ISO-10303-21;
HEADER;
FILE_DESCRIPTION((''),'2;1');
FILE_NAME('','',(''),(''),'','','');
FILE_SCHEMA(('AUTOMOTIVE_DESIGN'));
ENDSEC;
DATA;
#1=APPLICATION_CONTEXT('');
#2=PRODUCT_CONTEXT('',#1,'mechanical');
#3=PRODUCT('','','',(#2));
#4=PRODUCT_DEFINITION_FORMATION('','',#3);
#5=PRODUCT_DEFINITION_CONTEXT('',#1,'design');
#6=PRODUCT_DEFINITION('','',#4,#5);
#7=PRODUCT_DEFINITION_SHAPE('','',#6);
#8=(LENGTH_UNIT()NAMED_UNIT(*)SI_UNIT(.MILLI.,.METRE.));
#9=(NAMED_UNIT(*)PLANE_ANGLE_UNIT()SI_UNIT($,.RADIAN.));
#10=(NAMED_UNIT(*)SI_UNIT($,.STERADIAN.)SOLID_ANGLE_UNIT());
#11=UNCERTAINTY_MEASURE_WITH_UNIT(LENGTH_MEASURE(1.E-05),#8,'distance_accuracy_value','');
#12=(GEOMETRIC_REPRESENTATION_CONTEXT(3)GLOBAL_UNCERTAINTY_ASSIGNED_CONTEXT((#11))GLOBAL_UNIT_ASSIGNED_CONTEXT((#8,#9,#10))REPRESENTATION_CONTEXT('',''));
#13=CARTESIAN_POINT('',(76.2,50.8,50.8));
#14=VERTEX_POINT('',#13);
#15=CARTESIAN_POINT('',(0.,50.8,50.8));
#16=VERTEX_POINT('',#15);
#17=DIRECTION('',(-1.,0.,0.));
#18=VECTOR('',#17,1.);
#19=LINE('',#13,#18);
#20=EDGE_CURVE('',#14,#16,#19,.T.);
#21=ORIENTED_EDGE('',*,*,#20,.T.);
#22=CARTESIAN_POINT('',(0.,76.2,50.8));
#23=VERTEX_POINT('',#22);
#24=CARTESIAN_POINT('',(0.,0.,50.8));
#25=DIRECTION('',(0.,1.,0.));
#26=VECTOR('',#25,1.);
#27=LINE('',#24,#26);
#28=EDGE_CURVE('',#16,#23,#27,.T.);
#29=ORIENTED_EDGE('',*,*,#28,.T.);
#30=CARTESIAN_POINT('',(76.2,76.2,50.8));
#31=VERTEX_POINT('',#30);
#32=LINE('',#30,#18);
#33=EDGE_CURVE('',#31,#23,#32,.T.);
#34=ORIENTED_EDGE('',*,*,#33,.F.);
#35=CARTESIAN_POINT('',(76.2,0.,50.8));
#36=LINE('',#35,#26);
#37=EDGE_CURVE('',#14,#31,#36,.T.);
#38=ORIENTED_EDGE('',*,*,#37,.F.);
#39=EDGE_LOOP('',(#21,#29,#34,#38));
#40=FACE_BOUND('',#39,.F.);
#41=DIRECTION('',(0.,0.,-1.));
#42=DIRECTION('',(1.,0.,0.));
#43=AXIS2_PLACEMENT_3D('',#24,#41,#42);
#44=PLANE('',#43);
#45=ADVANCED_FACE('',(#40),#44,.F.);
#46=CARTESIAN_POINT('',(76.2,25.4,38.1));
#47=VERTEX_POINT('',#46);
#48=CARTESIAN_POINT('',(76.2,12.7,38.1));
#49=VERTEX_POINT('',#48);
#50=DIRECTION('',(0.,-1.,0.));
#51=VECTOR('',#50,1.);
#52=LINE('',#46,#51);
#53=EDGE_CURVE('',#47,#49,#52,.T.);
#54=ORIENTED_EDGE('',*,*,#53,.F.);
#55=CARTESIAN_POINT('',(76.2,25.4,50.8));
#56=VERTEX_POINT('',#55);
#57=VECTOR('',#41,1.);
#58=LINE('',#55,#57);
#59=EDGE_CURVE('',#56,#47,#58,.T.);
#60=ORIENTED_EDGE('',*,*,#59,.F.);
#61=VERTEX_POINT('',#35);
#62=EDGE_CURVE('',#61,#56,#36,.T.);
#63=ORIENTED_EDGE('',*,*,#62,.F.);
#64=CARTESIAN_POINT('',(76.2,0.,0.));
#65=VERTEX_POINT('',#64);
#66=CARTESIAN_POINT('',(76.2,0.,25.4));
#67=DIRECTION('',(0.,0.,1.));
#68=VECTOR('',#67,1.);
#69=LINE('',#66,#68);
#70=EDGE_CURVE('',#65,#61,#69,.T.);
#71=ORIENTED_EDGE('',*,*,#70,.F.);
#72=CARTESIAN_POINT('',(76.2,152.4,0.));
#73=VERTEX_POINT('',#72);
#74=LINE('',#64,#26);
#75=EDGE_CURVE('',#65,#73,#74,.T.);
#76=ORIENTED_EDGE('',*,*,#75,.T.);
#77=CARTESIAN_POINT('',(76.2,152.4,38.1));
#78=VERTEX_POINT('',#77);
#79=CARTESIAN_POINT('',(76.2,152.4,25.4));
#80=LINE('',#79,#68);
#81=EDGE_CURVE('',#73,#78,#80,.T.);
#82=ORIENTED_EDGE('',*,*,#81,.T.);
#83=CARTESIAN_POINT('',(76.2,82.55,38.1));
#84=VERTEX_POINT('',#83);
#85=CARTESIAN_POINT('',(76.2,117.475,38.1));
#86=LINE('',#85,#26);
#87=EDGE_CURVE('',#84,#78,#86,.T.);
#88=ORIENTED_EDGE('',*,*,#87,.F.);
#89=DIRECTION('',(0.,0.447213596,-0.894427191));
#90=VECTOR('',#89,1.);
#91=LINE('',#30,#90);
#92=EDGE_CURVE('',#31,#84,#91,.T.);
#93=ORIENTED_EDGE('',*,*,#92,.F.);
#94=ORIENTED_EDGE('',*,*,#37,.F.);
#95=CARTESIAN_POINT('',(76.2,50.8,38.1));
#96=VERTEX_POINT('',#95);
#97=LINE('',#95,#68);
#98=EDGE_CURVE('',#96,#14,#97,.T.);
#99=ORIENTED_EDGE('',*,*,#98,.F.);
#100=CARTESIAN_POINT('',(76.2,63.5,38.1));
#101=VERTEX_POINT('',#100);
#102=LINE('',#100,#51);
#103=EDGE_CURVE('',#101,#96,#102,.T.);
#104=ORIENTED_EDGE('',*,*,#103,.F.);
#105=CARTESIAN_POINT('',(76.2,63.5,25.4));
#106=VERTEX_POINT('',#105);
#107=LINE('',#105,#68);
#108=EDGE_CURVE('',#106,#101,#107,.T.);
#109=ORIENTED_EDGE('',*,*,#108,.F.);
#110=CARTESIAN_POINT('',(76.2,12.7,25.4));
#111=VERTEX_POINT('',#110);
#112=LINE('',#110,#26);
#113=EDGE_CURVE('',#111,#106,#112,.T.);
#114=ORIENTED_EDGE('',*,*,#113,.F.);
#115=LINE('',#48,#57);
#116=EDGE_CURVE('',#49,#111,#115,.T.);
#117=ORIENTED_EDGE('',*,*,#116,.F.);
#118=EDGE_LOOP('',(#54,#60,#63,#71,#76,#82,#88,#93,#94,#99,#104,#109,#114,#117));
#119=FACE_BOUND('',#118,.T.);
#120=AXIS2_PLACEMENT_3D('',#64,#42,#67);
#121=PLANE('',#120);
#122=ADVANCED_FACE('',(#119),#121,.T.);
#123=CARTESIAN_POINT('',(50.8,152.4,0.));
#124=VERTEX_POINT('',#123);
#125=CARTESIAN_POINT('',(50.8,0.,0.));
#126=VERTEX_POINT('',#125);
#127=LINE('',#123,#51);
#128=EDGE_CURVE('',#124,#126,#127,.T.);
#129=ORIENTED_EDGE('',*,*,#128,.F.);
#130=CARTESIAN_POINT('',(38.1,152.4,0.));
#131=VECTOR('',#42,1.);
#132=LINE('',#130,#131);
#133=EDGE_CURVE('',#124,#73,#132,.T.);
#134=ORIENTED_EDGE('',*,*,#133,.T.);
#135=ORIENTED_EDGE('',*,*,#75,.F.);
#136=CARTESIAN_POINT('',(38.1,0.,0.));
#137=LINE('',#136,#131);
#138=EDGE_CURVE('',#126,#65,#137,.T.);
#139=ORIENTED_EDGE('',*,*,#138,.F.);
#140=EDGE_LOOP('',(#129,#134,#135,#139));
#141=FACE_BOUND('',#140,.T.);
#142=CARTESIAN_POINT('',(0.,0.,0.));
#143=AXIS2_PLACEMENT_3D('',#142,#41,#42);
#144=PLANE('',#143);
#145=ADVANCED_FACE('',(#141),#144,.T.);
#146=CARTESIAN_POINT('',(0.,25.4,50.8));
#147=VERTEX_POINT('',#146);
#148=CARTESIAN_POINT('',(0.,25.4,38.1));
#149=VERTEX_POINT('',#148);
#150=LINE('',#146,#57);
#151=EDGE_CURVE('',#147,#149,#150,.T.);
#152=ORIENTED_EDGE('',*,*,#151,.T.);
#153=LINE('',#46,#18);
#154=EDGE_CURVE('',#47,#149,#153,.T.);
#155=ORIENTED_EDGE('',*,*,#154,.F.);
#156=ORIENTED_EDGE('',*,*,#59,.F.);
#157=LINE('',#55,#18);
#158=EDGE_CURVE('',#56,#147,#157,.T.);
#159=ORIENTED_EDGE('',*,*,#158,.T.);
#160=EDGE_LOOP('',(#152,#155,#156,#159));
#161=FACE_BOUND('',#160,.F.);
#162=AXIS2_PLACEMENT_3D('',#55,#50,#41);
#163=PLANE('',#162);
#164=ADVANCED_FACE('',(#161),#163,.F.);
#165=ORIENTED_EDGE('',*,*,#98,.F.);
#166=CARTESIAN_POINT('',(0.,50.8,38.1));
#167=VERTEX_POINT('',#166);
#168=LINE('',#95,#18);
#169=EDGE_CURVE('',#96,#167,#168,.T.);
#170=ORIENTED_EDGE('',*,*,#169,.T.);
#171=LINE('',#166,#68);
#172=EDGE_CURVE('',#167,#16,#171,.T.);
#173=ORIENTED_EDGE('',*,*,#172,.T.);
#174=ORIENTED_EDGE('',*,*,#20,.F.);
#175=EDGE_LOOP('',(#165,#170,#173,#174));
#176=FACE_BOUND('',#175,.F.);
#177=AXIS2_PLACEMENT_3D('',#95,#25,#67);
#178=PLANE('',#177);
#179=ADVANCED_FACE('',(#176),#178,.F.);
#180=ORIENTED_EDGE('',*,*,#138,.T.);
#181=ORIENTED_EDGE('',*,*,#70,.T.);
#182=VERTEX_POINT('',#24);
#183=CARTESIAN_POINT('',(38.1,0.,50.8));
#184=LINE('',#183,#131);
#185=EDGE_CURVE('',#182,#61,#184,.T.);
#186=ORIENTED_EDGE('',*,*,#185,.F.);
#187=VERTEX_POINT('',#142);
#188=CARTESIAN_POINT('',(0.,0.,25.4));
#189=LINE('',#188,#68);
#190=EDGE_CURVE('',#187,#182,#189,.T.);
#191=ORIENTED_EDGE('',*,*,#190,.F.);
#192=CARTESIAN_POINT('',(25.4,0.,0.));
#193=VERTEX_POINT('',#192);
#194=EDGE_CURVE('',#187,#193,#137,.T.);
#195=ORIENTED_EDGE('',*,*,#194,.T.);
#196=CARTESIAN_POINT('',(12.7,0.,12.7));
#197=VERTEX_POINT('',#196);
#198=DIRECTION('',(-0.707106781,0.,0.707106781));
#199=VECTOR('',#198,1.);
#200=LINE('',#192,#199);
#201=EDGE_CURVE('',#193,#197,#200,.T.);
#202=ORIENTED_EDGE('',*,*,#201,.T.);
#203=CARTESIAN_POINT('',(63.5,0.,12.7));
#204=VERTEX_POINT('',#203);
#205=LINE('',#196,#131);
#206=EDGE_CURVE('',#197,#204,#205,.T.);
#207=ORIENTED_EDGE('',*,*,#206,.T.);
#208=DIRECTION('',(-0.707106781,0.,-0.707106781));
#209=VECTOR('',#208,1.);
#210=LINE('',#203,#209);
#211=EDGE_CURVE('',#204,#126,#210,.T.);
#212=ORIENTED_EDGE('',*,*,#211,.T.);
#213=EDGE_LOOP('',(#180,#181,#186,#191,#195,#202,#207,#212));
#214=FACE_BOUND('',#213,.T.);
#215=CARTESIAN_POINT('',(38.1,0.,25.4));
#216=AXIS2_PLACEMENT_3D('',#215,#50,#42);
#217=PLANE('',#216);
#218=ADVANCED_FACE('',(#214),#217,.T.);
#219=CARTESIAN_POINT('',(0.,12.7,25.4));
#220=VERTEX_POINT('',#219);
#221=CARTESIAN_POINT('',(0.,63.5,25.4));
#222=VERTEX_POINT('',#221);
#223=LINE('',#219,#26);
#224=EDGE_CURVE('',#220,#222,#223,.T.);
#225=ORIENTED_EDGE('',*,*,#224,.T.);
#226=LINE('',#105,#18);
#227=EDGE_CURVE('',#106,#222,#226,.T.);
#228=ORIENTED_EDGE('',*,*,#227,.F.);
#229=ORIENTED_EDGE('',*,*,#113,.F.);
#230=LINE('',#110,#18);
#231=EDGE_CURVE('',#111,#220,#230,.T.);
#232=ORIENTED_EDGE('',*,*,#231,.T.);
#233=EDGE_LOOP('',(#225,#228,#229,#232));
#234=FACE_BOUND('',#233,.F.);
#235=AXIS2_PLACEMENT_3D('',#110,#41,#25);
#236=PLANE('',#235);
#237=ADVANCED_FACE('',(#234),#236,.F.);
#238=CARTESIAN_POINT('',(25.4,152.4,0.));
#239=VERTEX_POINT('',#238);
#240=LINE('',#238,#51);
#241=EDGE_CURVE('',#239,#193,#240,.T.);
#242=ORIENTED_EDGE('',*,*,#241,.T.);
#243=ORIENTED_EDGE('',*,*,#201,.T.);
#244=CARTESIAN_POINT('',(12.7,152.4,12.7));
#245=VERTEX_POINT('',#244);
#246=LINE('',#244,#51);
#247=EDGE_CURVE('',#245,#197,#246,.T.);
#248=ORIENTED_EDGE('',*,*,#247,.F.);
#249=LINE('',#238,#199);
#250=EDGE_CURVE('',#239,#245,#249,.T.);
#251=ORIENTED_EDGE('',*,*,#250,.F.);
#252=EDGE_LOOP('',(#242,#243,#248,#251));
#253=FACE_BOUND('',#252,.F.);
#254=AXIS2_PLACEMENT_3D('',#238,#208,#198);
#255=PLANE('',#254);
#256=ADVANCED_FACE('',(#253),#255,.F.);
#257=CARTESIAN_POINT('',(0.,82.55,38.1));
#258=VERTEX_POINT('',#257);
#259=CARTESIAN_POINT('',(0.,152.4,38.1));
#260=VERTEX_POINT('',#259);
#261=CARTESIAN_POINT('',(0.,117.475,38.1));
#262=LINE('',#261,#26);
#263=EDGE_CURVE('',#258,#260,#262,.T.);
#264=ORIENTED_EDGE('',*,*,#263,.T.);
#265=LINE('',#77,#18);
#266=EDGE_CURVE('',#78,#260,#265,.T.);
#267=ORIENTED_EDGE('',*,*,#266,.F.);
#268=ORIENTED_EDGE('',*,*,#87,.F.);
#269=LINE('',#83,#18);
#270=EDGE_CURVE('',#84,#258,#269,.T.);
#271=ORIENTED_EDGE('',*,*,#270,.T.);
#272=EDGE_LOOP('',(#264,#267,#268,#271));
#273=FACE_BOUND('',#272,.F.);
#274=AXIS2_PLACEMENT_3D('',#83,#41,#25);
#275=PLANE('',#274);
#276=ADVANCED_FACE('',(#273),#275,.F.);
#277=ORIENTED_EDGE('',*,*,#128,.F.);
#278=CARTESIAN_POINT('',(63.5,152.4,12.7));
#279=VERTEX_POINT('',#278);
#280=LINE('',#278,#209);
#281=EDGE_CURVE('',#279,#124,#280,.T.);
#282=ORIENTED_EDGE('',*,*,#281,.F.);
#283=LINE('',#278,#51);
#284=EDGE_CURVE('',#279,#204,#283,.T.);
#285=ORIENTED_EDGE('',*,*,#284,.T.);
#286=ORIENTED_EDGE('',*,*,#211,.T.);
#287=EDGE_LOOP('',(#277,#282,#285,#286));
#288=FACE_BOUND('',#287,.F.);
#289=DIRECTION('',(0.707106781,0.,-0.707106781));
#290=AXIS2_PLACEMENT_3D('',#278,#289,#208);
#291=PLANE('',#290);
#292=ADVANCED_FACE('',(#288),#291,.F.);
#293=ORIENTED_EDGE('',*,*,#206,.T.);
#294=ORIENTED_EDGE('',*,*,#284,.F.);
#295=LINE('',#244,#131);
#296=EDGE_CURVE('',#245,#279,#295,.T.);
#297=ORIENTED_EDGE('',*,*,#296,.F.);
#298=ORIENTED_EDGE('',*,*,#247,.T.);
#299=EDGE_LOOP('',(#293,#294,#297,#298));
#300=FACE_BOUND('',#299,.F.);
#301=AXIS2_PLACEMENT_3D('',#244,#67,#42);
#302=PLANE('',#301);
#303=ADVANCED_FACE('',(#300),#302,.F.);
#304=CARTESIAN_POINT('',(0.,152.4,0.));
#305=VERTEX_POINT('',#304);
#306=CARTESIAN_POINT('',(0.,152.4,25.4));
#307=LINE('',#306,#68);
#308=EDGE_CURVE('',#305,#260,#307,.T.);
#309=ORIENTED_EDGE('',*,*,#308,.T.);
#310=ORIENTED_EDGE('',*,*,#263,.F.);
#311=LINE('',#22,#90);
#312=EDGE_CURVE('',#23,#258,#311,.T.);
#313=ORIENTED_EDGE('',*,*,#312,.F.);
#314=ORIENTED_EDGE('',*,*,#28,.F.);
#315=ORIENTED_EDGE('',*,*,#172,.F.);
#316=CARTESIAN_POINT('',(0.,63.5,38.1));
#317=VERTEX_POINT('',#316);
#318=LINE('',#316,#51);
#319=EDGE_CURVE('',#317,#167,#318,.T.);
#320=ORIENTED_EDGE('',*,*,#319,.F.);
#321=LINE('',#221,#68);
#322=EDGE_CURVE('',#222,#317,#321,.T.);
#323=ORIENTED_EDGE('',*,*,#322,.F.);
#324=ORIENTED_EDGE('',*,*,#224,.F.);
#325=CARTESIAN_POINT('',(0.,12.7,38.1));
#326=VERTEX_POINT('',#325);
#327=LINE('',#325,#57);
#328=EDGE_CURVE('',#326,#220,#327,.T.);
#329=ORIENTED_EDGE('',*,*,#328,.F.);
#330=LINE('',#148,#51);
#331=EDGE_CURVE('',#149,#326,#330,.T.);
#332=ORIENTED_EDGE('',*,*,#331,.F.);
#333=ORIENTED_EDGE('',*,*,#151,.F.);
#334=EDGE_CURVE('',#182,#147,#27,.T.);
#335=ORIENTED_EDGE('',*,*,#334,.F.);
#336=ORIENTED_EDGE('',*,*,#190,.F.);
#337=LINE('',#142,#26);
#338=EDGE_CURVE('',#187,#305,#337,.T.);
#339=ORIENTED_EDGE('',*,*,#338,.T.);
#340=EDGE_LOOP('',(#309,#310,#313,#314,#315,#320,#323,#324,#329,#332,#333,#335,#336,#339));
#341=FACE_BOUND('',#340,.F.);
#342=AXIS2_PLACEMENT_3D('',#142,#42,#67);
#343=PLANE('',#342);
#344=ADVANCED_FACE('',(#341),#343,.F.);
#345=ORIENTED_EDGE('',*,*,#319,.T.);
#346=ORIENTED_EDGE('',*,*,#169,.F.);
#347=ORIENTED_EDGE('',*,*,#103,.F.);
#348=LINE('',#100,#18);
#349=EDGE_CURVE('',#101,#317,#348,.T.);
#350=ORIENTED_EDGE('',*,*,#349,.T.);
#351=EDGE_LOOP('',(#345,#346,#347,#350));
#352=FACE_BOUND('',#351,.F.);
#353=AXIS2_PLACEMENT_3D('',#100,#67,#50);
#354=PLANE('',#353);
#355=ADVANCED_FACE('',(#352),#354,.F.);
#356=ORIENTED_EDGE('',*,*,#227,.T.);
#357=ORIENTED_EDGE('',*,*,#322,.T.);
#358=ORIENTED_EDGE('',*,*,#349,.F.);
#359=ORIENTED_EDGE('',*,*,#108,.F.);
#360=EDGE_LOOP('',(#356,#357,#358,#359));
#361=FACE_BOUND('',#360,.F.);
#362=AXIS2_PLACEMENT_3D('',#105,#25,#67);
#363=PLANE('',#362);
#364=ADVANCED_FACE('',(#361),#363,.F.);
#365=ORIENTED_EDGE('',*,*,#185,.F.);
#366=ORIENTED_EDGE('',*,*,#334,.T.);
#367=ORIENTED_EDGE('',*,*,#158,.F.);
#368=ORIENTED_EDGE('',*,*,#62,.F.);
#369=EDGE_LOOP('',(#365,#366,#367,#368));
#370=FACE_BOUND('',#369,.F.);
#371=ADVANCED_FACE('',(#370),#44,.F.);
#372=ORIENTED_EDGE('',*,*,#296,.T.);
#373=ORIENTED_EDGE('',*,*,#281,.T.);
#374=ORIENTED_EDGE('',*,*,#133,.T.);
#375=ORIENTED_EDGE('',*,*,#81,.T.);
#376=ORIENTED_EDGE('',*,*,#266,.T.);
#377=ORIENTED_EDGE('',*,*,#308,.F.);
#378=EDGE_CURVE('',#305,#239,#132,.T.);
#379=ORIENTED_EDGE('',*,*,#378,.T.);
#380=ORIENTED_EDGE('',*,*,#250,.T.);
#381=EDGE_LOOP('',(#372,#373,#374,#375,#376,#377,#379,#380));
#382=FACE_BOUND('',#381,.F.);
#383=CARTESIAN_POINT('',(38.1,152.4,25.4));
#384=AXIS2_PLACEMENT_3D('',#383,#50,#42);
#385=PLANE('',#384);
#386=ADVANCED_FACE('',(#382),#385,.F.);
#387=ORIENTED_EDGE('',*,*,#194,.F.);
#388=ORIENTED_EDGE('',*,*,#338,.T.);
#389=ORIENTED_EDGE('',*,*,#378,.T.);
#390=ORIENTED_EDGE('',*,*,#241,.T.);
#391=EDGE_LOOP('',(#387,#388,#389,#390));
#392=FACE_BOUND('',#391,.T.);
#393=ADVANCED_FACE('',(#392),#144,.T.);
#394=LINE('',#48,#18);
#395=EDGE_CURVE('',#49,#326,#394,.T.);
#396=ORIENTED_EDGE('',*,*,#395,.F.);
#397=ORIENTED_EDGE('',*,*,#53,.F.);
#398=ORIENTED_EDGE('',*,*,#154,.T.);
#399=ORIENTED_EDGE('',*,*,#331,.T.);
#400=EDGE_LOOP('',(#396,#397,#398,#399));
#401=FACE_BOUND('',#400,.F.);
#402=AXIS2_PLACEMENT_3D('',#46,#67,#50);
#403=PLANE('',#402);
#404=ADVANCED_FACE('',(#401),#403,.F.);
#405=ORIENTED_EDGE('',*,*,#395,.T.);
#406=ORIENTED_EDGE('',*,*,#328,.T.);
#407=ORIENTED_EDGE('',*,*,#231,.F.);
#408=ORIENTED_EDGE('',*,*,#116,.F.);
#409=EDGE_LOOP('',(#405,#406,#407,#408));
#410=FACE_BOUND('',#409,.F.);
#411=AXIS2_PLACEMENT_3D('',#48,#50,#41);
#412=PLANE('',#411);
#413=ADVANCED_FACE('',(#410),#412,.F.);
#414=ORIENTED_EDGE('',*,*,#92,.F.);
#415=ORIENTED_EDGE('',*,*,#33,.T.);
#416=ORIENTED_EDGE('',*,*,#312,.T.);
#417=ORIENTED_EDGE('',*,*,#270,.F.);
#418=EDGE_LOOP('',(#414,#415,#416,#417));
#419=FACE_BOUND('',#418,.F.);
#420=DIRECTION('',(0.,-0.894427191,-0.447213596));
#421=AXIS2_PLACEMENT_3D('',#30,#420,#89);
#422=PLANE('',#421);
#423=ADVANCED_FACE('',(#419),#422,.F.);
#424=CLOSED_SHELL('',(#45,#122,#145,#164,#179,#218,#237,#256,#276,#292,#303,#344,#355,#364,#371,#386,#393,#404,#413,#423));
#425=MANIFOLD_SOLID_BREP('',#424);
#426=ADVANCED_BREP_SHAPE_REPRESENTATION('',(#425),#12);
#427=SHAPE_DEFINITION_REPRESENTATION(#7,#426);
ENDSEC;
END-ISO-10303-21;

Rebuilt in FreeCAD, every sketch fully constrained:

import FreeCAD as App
import Part
import Sketcher

V = App.Vector
Q = App.Units.Quantity


def add_polygon(sketch, points):
    """Adds a closed chain of lines whose ends are joined by coincident constraints."""
    first, n = sketch.GeometryCount, len(points)
    for a, b in zip(points, points[1:] + points[:1]):
        sketch.addGeometry(Part.LineSegment(App.Vector(*a, 0), App.Vector(*b, 0)), False)
    for i in range(n):
        sketch.addConstraint(Sketcher.Constraint("Coincident", first + i, 2, first + (i + 1) % n, 1))

doc = App.newDocument("Part")
params = doc.addObject("Spreadsheet::Sheet", "Params")
for row, (alias, value) in enumerate([
    ("sketch1_width", "3 in"),
    ("sketch1_height", "2 in"),
    ("pad1_length", "6 in"),
    ("sketch2_width", "1 in"),
    ("sketch2_width2", "2 in"),
    ("pocket1_length", "3 in"),
    ("sketch3_width", "3 in"),
    ("sketch3_height", "0.5 in"),
    ("sketch3_width2", "2.75 in"),
    ("pocket2_length", "3 in"),
    ("sketch4_width", "1 in"),
    ("sketch4_width2", "2 in"),
    ("pocket3_length", "6 in"),
], start=1):
    params.set(f"A{row}", alias)
    params.set(f"B{row}", "=" + value)
    params.setAlias(f"B{row}", alias)

body = doc.addObject("PartDesign::Body", "Body")

# Sketch on XZ plane
sketch1 = body.newObject("Sketcher::SketchObject", "Sketch")
sketch1.AttachmentSupport = (doc.getObject("XZ_Plane"), [""])
sketch1.MapMode = "FlatFace"
add_polygon(sketch1, [(0, 51), (0, 0), (76, 0), (76, 51)])  # lines 0-3
sketch1.addConstraint([
    Sketcher.Constraint("Vertical", 0),
    Sketcher.Constraint("Horizontal", 1),
    Sketcher.Constraint("Vertical", 2),
    Sketcher.Constraint("Horizontal", 3),
    Sketcher.Constraint("Coincident", 0, 2, -1, 1),
    Sketcher.Constraint("DistanceX", 1, 1, 1, 2, Q("3 in")),
    Sketcher.Constraint("DistanceY", 0, 2, 0, 1, Q("2 in")),
])
sketch1.setExpression("Constraints[9]", "Params.sketch1_width")
sketch1.setExpression("Constraints[10]", "Params.sketch1_height")
pad1 = body.newObject("PartDesign::Pad", "Pad")
pad1.Profile = sketch1
pad1.setExpression("Length", "Params.pad1_length")
pad1.Reversed = True

# Sketch on YZ plane
sketch2 = body.newObject("Sketcher::SketchObject", "Sketch001")
sketch2.AttachmentSupport = (doc.getObject("YZ_Plane"), [""])
sketch2.MapMode = "FlatFace"
sketch2.AttachmentOffset = App.Placement(V(0, 0, 3 * 25.4), App.Rotation())
add_polygon(sketch2, [(51, 51), (25, 51), (25, 38), (13, 38), (13, 25), (64, 25), (64, 38), (51, 38)])  # lines 0-7
sketch2.addConstraint([
    Sketcher.Constraint("Horizontal", 0),
    Sketcher.Constraint("Vertical", 1),
    Sketcher.Constraint("Horizontal", 2),
    Sketcher.Constraint("Vertical", 3),
    Sketcher.Constraint("Horizontal", 4),
    Sketcher.Constraint("Vertical", 5),
    Sketcher.Constraint("Horizontal", 6),
    Sketcher.Constraint("Vertical", 7),
    Sketcher.Constraint("Horizontal", 2, 2, 5, 2),
    Sketcher.Constraint("Equal", 2, 6),
    Sketcher.Constraint("Equal", 6, 1),
    Sketcher.Constraint("Equal", 1, 3),
    Sketcher.Constraint("DistanceX", 0, 2, 0, 1, Q("1 in")),
    Sketcher.Constraint("DistanceX", 4, 1, 4, 2, Q("2 in")),
    Sketcher.Constraint("DistanceX", -1, 1, 0, 2, Q("1 in")),
    Sketcher.Constraint("DistanceY", -1, 1, 0, 2, Q("2 in")),
])
sketch2.setExpression("Constraints[20]", "Params.sketch2_width")
sketch2.setExpression("Constraints[21]", "Params.sketch2_width2")
pocket1 = body.newObject("PartDesign::Pocket", "Pocket")
pocket1.Profile = sketch2
pocket1.setExpression("Length", "Params.pocket1_length")

# Sketch on YZ plane
sketch3 = body.newObject("Sketcher::SketchObject", "Sketch002")
sketch3.AttachmentSupport = (doc.getObject("YZ_Plane"), [""])
sketch3.MapMode = "FlatFace"
sketch3.AttachmentOffset = App.Placement(V(0, 0, 3 * 25.4), App.Rotation())
add_polygon(sketch3, [(76, 51), (83, 38), (152, 38), (152, 51)])  # lines 0-3
sketch3.addConstraint([
    Sketcher.Constraint("Horizontal", 1),
    Sketcher.Constraint("Vertical", 2),
    Sketcher.Constraint("Horizontal", 3),
    Sketcher.Constraint("DistanceX", 3, 2, 3, 1, Q("3 in")),
    Sketcher.Constraint("DistanceY", 2, 1, 2, 2, Q("0.5 in")),
    Sketcher.Constraint("DistanceX", -1, 1, 1, 2, Q("6 in")),
    Sketcher.Constraint("DistanceY", -1, 1, 2, 2, Q("2 in")),
    Sketcher.Constraint("DistanceX", 1, 1, 1, 2, Q("2.75 in")),
])
sketch3.setExpression("Constraints[7]", "Params.sketch3_width")
sketch3.setExpression("Constraints[8]", "Params.sketch3_height")
sketch3.setExpression("Constraints[11]", "Params.sketch3_width2")
pocket2 = body.newObject("PartDesign::Pocket", "Pocket001")
pocket2.Profile = sketch3
pocket2.setExpression("Length", "Params.pocket2_length")

# Sketch on XZ plane
sketch4 = body.newObject("Sketcher::SketchObject", "Sketch003")
sketch4.AttachmentSupport = (doc.getObject("XZ_Plane"), [""])
sketch4.MapMode = "FlatFace"
sketch4.AttachmentOffset = App.Placement(V(0, 0, -6 * 25.4), App.Rotation())
add_polygon(sketch4, [(64, 13), (51, 0), (25, 0), (13, 13)])  # lines 0-3
sketch4.addConstraint([
    Sketcher.Constraint("Horizontal", 1),
    Sketcher.Constraint("Horizontal", 3),
    Sketcher.Constraint("PointOnObject", 0, 2, -1),
    Sketcher.Constraint("Perpendicular", 0, 2),
    Sketcher.Constraint("Equal", 0, 2),
    Sketcher.Constraint("DistanceX", 1, 2, 1, 1, Q("1 in")),
    Sketcher.Constraint("DistanceX", 3, 1, 3, 2, Q("2 in")),
    Sketcher.Constraint("DistanceX", -1, 1, 0, 2, Q("2 in")),
])
sketch4.setExpression("Constraints[9]", "Params.sketch4_width")
sketch4.setExpression("Constraints[10]", "Params.sketch4_width2")
pocket3 = body.newObject("PartDesign::Pocket", "Pocket002")
pocket3.Profile = sketch4
pocket3.setExpression("Length", "Params.pocket3_length")
pocket3.Reversed = True

doc.recompute()
